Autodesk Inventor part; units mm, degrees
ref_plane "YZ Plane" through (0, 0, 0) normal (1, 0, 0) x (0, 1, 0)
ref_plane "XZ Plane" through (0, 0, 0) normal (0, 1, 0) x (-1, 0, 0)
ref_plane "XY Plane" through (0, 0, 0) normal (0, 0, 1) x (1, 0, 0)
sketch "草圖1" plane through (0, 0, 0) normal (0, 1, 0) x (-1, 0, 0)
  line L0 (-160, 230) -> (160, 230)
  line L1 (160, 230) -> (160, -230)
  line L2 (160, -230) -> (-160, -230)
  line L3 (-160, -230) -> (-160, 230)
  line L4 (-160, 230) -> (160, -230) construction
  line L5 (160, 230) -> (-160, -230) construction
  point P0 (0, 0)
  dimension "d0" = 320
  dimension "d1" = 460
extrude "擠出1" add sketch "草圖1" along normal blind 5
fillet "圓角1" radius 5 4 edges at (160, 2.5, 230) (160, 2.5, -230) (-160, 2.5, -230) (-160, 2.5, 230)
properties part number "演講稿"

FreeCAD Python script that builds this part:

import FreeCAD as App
import Part
import Sketcher
from FreeCAD import Vector


def edges_at(feature, points):
    """Names of the edges that pass closest to the given points."""
    edges = feature.Shape.Edges
    near = lambda p: min(range(len(edges)), key=lambda i: edges[i].distToShape(Part.Vertex(*p))[0])
    return sorted({f"Edge{near(p) + 1}" for p in points})


def add_polygon(sketch, points):
    """Adds a closed chain of lines whose ends are joined by coincident constraints."""
    first, n = sketch.GeometryCount, len(points)
    for a, b in zip(points, points[1:] + points[:1]):
        sketch.addGeometry(Part.LineSegment(App.Vector(*a, 0), App.Vector(*b, 0)), False)
    for i in range(n):
        sketch.addConstraint(Sketcher.Constraint("Coincident", first + i, 2, first + (i + 1) % n, 1))

doc = App.newDocument("Part")
body = doc.addObject("PartDesign::Body", "Body")

# Sketch on XZ plane
sketch1 = doc.addObject("Sketcher::SketchObject", "Sketch")
body.addObject(sketch1)
sketch1.AttachmentSupport = (doc.XZ_Plane, [""])
sketch1.MapMode = "FlatFace"
add_polygon(sketch1, [(-160, 230), (160, 230), (160, -230), (-160, -230)])  # lines 0-3
sketch1.addConstraint([
    Sketcher.Constraint("Horizontal", 0),
    Sketcher.Constraint("Vertical", 1),
    Sketcher.Constraint("Horizontal", 2),
    Sketcher.Constraint("Vertical", 3),
    Sketcher.Constraint("Symmetric", 0, 2, 2, 2, -1, 1),
    Sketcher.Constraint("DistanceX", 0, 1, 0, 2, 320.0),
    Sketcher.Constraint("DistanceY", 1, 2, 1, 1, 460.0),
])
pad1 = doc.addObject("PartDesign::Pad", "Pad")
body.addObject(pad1)
pad1.Profile = sketch1
pad1.Length = 5
pad1.Reversed = True
doc.recompute()

fillet = doc.addObject("PartDesign::Fillet", "Fillet")
body.addObject(fillet)
fillet.Base = (pad1, edges_at(pad1, [
    (160, 2.5, 230),
    (160, 2.5, -230),
    (-160, 2.5, -230),
    (-160, 2.5, 230),
]))
fillet.Radius = 5

doc.recompute()
